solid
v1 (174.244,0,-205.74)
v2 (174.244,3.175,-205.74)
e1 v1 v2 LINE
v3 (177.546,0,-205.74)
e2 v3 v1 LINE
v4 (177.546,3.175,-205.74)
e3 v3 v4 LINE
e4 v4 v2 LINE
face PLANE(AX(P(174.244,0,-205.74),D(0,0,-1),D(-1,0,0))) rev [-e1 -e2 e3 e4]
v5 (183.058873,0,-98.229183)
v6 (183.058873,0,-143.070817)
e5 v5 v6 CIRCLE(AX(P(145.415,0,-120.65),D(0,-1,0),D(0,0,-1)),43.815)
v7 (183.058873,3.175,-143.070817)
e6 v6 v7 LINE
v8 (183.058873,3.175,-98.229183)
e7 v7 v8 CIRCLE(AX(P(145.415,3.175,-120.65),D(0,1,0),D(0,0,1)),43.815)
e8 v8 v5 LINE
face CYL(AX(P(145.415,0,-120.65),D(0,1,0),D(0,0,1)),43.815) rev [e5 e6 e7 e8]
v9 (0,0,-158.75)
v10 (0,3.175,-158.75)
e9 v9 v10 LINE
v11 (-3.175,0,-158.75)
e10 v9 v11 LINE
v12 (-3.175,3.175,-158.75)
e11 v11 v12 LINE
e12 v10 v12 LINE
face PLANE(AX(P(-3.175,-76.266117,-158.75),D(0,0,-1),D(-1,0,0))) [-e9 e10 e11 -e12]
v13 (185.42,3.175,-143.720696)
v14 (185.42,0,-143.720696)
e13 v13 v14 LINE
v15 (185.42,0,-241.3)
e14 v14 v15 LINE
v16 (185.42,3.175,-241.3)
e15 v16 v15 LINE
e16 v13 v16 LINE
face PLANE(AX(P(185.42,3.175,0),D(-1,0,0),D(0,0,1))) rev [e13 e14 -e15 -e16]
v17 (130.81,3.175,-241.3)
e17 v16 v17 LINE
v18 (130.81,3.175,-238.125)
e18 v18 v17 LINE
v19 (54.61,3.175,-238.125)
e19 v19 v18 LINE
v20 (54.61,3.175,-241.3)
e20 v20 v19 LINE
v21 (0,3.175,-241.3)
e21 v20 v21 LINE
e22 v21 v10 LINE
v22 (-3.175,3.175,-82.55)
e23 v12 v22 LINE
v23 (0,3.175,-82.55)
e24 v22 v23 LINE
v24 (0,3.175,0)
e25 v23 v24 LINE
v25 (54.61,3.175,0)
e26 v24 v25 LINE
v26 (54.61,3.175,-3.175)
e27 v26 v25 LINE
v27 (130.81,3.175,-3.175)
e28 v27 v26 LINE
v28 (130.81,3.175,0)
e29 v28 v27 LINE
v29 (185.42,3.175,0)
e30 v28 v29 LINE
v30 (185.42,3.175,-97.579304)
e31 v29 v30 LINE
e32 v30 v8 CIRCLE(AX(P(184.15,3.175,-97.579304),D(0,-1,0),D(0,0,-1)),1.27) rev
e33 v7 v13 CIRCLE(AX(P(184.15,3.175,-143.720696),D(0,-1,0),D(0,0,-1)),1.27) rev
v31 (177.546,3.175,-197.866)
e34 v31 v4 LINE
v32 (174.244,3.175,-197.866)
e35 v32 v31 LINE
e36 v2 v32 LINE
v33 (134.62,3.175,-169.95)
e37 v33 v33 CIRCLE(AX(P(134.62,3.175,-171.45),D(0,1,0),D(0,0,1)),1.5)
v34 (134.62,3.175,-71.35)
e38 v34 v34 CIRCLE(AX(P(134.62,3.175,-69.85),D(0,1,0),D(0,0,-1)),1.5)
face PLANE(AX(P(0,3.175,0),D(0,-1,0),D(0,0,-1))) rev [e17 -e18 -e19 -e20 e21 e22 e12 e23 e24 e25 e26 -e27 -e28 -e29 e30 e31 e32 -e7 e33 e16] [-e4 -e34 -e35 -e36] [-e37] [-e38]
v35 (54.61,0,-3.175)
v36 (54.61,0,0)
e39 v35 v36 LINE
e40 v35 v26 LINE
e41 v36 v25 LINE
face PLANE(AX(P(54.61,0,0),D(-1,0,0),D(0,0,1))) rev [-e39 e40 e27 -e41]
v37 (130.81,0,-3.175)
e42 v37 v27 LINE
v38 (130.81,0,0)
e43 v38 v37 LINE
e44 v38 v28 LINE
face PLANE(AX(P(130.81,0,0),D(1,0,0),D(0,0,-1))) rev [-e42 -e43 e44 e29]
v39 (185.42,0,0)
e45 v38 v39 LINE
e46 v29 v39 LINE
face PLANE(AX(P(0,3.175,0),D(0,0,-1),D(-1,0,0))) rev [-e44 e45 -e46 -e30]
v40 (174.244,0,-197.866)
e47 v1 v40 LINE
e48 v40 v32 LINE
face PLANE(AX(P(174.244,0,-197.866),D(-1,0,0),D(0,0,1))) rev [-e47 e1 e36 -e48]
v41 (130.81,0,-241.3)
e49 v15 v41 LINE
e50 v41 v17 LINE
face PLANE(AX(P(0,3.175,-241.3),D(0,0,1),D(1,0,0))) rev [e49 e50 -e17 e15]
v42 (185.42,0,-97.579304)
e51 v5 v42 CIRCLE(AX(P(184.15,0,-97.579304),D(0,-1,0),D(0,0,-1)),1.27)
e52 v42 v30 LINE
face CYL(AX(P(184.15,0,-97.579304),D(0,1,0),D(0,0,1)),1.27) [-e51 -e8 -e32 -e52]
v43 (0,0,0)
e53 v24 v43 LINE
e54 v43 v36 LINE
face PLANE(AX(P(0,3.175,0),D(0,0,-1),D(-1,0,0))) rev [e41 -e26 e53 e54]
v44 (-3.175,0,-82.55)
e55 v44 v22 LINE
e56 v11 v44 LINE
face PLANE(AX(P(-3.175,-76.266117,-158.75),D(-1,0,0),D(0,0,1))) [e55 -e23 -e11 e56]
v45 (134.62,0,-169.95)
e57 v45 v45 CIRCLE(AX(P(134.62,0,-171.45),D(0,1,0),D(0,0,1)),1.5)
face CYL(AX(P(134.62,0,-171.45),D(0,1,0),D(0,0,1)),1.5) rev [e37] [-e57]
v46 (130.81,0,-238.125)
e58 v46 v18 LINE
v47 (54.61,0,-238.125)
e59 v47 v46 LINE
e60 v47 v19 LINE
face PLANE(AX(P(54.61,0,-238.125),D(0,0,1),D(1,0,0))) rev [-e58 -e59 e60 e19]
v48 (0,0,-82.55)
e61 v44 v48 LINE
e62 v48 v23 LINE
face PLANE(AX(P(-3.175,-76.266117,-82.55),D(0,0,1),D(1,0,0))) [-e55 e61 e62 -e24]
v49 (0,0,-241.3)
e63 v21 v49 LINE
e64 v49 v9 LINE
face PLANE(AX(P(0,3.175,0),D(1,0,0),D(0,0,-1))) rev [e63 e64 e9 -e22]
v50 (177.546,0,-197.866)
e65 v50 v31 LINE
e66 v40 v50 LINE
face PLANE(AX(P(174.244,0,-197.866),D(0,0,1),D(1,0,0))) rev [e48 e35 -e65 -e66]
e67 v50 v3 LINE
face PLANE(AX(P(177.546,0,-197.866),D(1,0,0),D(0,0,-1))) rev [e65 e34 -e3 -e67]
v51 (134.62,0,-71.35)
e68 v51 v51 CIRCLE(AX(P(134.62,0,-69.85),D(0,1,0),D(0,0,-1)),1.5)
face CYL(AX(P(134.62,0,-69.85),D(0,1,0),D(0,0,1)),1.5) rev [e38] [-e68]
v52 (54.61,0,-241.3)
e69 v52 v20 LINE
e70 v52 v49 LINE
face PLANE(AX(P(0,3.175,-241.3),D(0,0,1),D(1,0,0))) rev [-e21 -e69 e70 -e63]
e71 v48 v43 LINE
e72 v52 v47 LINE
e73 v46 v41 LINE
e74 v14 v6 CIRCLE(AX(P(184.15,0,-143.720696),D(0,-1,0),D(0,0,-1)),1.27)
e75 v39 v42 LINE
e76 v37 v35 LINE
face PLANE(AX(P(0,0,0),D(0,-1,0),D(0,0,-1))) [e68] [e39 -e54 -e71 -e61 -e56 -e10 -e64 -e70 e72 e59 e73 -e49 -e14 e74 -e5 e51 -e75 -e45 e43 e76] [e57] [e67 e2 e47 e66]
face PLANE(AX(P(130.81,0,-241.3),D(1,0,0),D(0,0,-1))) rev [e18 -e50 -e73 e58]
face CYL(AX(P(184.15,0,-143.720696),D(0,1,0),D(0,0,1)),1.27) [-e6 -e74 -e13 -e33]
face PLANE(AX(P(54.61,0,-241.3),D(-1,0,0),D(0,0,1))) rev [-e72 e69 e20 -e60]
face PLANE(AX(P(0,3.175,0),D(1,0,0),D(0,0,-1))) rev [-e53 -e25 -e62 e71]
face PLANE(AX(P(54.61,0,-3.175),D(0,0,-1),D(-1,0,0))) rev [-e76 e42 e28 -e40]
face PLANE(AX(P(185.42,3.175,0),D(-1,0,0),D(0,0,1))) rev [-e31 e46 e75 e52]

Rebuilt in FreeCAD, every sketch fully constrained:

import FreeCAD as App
import Part
import Sketcher

V = App.Vector
Q = App.Units.Quantity


def edges_at(feature, points):
    """Names of the edges that pass closest to the given points."""
    edges = feature.Shape.Edges
    near = lambda p: min(range(len(edges)), key=lambda i: edges[i].distToShape(Part.Vertex(*p))[0])
    return sorted({f"Edge{near(p) + 1}" for p in points})

doc = App.newDocument("Part")
body = doc.addObject("PartDesign::Body", "Body")

# Sketch on XZ plane
sketch1 = doc.addObject("Sketcher::SketchObject", "Sketch")
body.addObject(sketch1)
sketch1.AttachmentSupport = (doc.XZ_Plane, [""])
sketch1.MapMode = "FlatFace"
sketch1.addGeometry(Part.LineSegment(V(0, -241, 0), V(0, 0, 0)), False)
sketch1.addGeometry(Part.LineSegment(V(0, 0, 0), V(185, 0, 0)), False)
sketch1.addGeometry(Part.LineSegment(V(185, 0, 0), V(185, -241, 0)), False)
sketch1.addGeometry(Part.LineSegment(V(185, -241, 0), V(0, -241, 0)), False)
sketch1.addConstraint(Sketcher.Constraint("Coincident", 0, 2, 1, 1))
sketch1.addConstraint(Sketcher.Constraint("Coincident", 1, 2, 2, 1))
sketch1.addConstraint(Sketcher.Constraint("Coincident", 2, 2, 3, 1))
sketch1.addConstraint(Sketcher.Constraint("Coincident", 3, 2, 0, 1))
sketch1.addConstraint(Sketcher.Constraint("Vertical", 0))
sketch1.addConstraint(Sketcher.Constraint("Horizontal", 1))
sketch1.addConstraint(Sketcher.Constraint("Vertical", 2))
sketch1.addConstraint(Sketcher.Constraint("Horizontal", 3))
sketch1.addConstraint(Sketcher.Constraint("Coincident", 0, 2, -1, 1))
sketch1.addConstraint(Sketcher.Constraint("DistanceX", 1, 1, 1, 2, Q("7.3 in")))
sketch1.addConstraint(Sketcher.Constraint("DistanceY", 0, 1, 0, 2, Q("9.5 in")))
pad1 = doc.addObject("PartDesign::Pad", "Pad")
body.addObject(pad1)
pad1.Profile = sketch1
pad1.Length = Q("0.125 in")
pad1.Reversed = True

# Sketch on XZ plane
sketch2 = doc.addObject("Sketcher::SketchObject", "Sketch001")
body.addObject(sketch2)
sketch2.AttachmentSupport = (doc.XZ_Plane, [""])
sketch2.MapMode = "FlatFace"
sketch2.AttachmentOffset = App.Placement(V(0, 0, -0.125 * 25.4), App.Rotation())
sketch2.addGeometry(Part.Circle(V(145, -121, 0), V(0, 0, 1), 44), False)
sketch2.addConstraint(Sketcher.Constraint("Diameter", 0, Q("3.45 in")))
sketch2.addConstraint(Sketcher.Constraint("DistanceY", 0, 3, -1, 1, Q("4.75 in")))
sketch2.addConstraint(Sketcher.Constraint("DistanceX", -1, 1, 0, 3, Q("5.725 in")))
pocket1 = doc.addObject("PartDesign::Pocket", "Pocket")
body.addObject(pocket1)
pocket1.Profile = sketch2
pocket1.Type = "ThroughAll"
pocket1.Reversed = True

# Sketch on XZ plane
sketch3 = doc.addObject("Sketcher::SketchObject", "Sketch002")
body.addObject(sketch3)
sketch3.AttachmentSupport = (doc.XZ_Plane, [""])
sketch3.MapMode = "FlatFace"
sketch3.AttachmentOffset = App.Placement(V(0, 0, -0.125 * 25.4), App.Rotation())
sketch3.addGeometry(Part.Circle(V(134.6, -171.4, 0), V(0, 0, 1), 1.5), False)
sketch3.addGeometry(Part.Circle(V(134.6, -69.8, 0), V(0, 0, 1), 1.5), False)
sketch3.addConstraint(Sketcher.Constraint("Equal", 0, 1))
sketch3.addConstraint(Sketcher.Constraint("Vertical", 0, 3, 1, 3))
sketch3.addConstraint(Sketcher.Constraint("DistanceY", 0, 3, 1, 3, Q("4 in")))
sketch3.addConstraint(Sketcher.Constraint("DistanceX", -1, 1, 0, 3, Q("5.3 in")))
sketch3.addConstraint(Sketcher.Constraint("Diameter", 0, Q("3 mm")))
sketch3.addConstraint(Sketcher.Constraint("DistanceY", 0, 3, -1, 1, Q("6.75 in")))
pocket2 = doc.addObject("PartDesign::Pocket", "Pocket001")
body.addObject(pocket2)
pocket2.Profile = sketch3
pocket2.Type = "ThroughAll"
pocket2.Reversed = True
doc.recompute()

fillet = doc.addObject("PartDesign::Fillet", "Fillet")
body.addObject(fillet)
fillet.Base = (pocket2, edges_at(pocket2, [(185.42, 1.587, -102.78), (185.42, 1.587, -138.52)]))
fillet.Radius = Q("0.05 in")

# Sketch on XZ plane
sketch4 = doc.addObject("Sketcher::SketchObject", "Sketch003")
body.addObject(sketch4)
sketch4.AttachmentSupport = (doc.XZ_Plane, [""])
sketch4.MapMode = "FlatFace"
sketch4.AttachmentOffset = App.Placement(V(0, 0, -0.125 * 25.4), App.Rotation())
sketch4.addGeometry(Part.LineSegment(V(54.6, -241.3, 0), V(54.6, -238.1, 0)), False)
sketch4.addGeometry(Part.LineSegment(V(54.6, -238.1, 0), V(130.8, -238.1, 0)), False)
sketch4.addGeometry(Part.LineSegment(V(130.8, -238.1, 0), V(130.8, -241.3, 0)), False)
sketch4.addGeometry(Part.LineSegment(V(130.8, -241.3, 0), V(54.6, -241.3, 0)), False)
sketch4.addGeometry(Part.LineSegment(V(54.6, -3.2, 0), V(54.6, 0, 0)), False)
sketch4.addGeometry(Part.LineSegment(V(54.6, 0, 0), V(130.8, 0, 0)), False)
sketch4.addGeometry(Part.LineSegment(V(130.8, 0, 0), V(130.8, -3.2, 0)), False)
sketch4.addGeometry(Part.LineSegment(V(130.8, -3.2, 0), V(54.6, -3.2, 0)), False)
sketch4.addConstraint(Sketcher.Constraint("Coincident", 0, 2, 1, 1))
sketch4.addConstraint(Sketcher.Constraint("Coincident", 1, 2, 2, 1))
sketch4.addConstraint(Sketcher.Constraint("Coincident", 2, 2, 3, 1))
sketch4.addConstraint(Sketcher.Constraint("Coincident", 3, 2, 0, 1))
sketch4.addConstraint(Sketcher.Constraint("Coincident", 4, 2, 5, 1))
sketch4.addConstraint(Sketcher.Constraint("Coincident", 5, 2, 6, 1))
sketch4.addConstraint(Sketcher.Constraint("Coincident", 6, 2, 7, 1))
sketch4.addConstraint(Sketcher.Constraint("Coincident", 7, 2, 4, 1))
sketch4.addConstraint(Sketcher.Constraint("Vertical", 0))
sketch4.addConstraint(Sketcher.Constraint("Horizontal", 1))
sketch4.addConstraint(Sketcher.Constraint("Vertical", 2))
sketch4.addConstraint(Sketcher.Constraint("Horizontal", 3))
sketch4.addConstraint(Sketcher.Constraint("Vertical", 4))
sketch4.addConstraint(Sketcher.Constraint("Horizontal", 5))
sketch4.addConstraint(Sketcher.Constraint("Vertical", 6))
sketch4.addConstraint(Sketcher.Constraint("Horizontal", 7))
sketch4.addConstraint(Sketcher.Constraint("PointOnObject", 4, 2, -1))
sketch4.addConstraint(Sketcher.Constraint("Vertical", 3, 2, 4, 2))
sketch4.addConstraint(Sketcher.Constraint("Vertical", 2, 2, 5, 2))
sketch4.addConstraint(Sketcher.Constraint("Equal", 2, 4))
sketch4.addConstraint(Sketcher.Constraint("DistanceX", 1, 1, 1, 2, Q("3 in")))
sketch4.addConstraint(Sketcher.Constraint("DistanceY", 2, 2, -1, 1, Q("9.5 in")))
sketch4.addConstraint(Sketcher.Constraint("DistanceY", 0, 1, 0, 2, Q("0.125 in")))
sketch4.addConstraint(Sketcher.Constraint("DistanceX", -1, 1, 0, 2, Q("2.15 in")))
pocket3 = doc.addObject("PartDesign::Pocket", "Pocket002")
body.addObject(pocket3)
pocket3.Profile = sketch4
pocket3.Type = "ThroughAll"
pocket3.Reversed = True

# Sketch on XZ plane
sketch5 = doc.addObject("Sketcher::SketchObject", "Sketch004")
body.addObject(sketch5)
sketch5.AttachmentSupport = (doc.XZ_Plane, [""])
sketch5.MapMode = "FlatFace"
sketch5.AttachmentOffset = App.Placement(V(0, 0, -0.125 * 25.4), App.Rotation())
sketch5.addGeometry(Part.LineSegment(V(-3.2, -158.8, 0), V(-3.2, -82.5, 0)), False)
sketch5.addGeometry(Part.LineSegment(V(-3.2, -82.5, 0), V(0, -82.5, 0)), False)
sketch5.addGeometry(Part.LineSegment(V(0, -82.5, 0), V(0, -158.8, 0)), False)
sketch5.addGeometry(Part.LineSegment(V(0, -158.8, 0), V(-3.2, -158.8, 0)), False)
sketch5.addConstraint(Sketcher.Constraint("Coincident", 0, 2, 1, 1))
sketch5.addConstraint(Sketcher.Constraint("Coincident", 1, 2, 2, 1))
sketch5.addConstraint(Sketcher.Constraint("Coincident", 2, 2, 3, 1))
sketch5.addConstraint(Sketcher.Constraint("Coincident", 3, 2, 0, 1))
sketch5.addConstraint(Sketcher.Constraint("Vertical", 0))
sketch5.addConstraint(Sketcher.Constraint("Horizontal", 1))
sketch5.addConstraint(Sketcher.Constraint("Vertical", 2))
sketch5.addConstraint(Sketcher.Constraint("Horizontal", 3))
sketch5.addConstraint(Sketcher.Constraint("PointOnObject", 1, 2, -2))
sketch5.addConstraint(Sketcher.Constraint("DistanceY", 0, 1, 0, 2, Q("3 in")))
sketch5.addConstraint(Sketcher.Constraint("DistanceX", 1, 1, 1, 2, Q("0.125 in")))
sketch5.addConstraint(Sketcher.Constraint("DistanceY", 0, 2, -1, 1, Q("3.25 in")))
pad2 = doc.addObject("PartDesign::Pad", "Pad001")
body.addObject(pad2)
pad2.Profile = sketch5
pad2.Length = Q("0.125 in")

# Sketch on XZ plane
sketch6 = doc.addObject("Sketcher::SketchObject", "Sketch005")
body.addObject(sketch6)
sketch6.AttachmentSupport = (doc.XZ_Plane, [""])
sketch6.MapMode = "FlatFace"
sketch6.AttachmentOffset = App.Placement(V(0, 0, -0.125 * 25.4), App.Rotation())
sketch6.addGeometry(Part.LineSegment(V(174.2, -205.7, 0), V(174.2, -197.9, 0)), False)
sketch6.addGeometry(Part.LineSegment(V(174.2, -197.9, 0), V(177.5, -197.9, 0)), False)
sketch6.addGeometry(Part.LineSegment(V(177.5, -197.9, 0), V(177.5, -205.7, 0)), False)
sketch6.addGeometry(Part.LineSegment(V(177.5, -205.7, 0), V(174.2, -205.7, 0)), False)
sketch6.addConstraint(Sketcher.Constraint("Coincident", 0, 2, 1, 1))
sketch6.addConstraint(Sketcher.Constraint("Coincident", 1, 2, 2, 1))
sketch6.addConstraint(Sketcher.Constraint("Coincident", 2, 2, 3, 1))
sketch6.addConstraint(Sketcher.Constraint("Coincident", 3, 2, 0, 1))
sketch6.addConstraint(Sketcher.Constraint("Vertical", 0))
sketch6.addConstraint(Sketcher.Constraint("Horizontal", 1))
sketch6.addConstraint(Sketcher.Constraint("Vertical", 2))
sketch6.addConstraint(Sketcher.Constraint("Horizontal", 3))
sketch6.addConstraint(Sketcher.Constraint("DistanceX", 1, 1, 1, 2, Q("0.13 in")))
sketch6.addConstraint(Sketcher.Constraint("DistanceY", 0, 1, 0, 2, Q("0.31 in")))
sketch6.addConstraint(Sketcher.Constraint("DistanceY", 2, 2, -1, 1, Q("8.1 in")))
sketch6.addConstraint(Sketcher.Constraint("DistanceX", -1, 1, 0, 2, Q("6.86 in")))
pocket4 = doc.addObject("PartDesign::Pocket", "Pocket003")
body.addObject(pocket4)
pocket4.Profile = sketch6
pocket4.Type = "ThroughAll"
pocket4.Reversed = True

doc.recompute()
